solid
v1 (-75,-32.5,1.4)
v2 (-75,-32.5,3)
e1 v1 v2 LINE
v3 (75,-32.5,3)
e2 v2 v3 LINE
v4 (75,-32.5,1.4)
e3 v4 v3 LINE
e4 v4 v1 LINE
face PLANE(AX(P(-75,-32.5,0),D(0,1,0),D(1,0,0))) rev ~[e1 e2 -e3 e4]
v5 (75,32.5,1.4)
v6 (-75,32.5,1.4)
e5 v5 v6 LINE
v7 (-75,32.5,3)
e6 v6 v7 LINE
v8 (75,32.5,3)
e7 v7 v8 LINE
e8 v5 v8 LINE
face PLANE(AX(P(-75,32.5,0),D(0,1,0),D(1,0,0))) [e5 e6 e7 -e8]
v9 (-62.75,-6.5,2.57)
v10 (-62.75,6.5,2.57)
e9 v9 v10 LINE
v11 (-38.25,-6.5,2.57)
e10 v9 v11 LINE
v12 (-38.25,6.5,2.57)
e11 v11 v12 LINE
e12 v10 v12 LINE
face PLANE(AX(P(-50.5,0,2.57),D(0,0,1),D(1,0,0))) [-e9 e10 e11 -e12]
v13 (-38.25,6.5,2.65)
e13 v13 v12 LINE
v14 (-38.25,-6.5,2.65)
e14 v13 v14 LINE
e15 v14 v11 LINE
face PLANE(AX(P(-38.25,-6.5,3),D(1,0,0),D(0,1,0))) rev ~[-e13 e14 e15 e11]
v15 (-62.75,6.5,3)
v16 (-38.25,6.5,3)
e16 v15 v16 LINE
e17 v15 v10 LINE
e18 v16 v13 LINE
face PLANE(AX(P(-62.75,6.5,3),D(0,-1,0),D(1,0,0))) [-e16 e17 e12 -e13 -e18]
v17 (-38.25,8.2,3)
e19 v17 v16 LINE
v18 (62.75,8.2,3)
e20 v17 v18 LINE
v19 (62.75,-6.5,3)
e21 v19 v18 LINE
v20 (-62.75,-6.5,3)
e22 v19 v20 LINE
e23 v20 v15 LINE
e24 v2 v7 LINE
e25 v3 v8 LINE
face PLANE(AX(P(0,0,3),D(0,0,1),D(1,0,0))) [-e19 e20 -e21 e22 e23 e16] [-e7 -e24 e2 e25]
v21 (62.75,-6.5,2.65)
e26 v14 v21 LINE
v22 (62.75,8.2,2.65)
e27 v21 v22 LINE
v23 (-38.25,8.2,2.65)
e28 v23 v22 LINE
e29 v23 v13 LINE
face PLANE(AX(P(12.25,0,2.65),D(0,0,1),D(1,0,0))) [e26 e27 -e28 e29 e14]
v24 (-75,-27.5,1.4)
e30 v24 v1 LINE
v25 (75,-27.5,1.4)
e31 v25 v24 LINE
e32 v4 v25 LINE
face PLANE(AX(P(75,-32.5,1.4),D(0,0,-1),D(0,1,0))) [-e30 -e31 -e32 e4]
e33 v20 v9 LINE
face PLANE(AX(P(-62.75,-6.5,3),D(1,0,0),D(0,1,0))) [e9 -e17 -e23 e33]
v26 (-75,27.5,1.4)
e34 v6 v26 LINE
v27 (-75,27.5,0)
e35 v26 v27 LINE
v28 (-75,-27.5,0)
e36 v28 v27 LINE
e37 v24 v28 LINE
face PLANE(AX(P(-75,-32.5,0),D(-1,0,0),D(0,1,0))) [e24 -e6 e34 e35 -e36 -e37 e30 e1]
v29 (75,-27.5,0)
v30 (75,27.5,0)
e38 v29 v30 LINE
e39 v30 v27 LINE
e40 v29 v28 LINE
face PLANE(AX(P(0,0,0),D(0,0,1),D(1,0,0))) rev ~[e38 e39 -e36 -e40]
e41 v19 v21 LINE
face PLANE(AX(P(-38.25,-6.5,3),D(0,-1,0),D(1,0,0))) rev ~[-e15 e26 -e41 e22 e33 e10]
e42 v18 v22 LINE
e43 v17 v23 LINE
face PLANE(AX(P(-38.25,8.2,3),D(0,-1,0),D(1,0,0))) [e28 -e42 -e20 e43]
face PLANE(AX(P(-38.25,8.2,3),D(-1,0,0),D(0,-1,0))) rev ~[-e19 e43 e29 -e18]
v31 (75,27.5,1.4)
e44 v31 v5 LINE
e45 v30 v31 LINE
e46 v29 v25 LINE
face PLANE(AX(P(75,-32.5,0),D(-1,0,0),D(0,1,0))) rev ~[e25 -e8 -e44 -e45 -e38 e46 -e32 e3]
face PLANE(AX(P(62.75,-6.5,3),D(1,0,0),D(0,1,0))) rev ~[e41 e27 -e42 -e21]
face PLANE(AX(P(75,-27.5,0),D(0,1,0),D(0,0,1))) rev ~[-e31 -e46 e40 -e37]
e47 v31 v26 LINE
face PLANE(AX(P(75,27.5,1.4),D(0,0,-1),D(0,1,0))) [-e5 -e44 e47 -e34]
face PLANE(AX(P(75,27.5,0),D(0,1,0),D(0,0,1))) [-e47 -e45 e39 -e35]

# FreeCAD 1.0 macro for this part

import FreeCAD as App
import Part
import Sketcher

V = App.Vector
Q = App.Units.Quantity


def add_polygon(sketch, points):
    """Adds a closed chain of lines whose ends are joined by coincident constraints."""
    first, n = sketch.GeometryCount, len(points)
    for a, b in zip(points, points[1:] + points[:1]):
        sketch.addGeometry(Part.LineSegment(App.Vector(*a, 0), App.Vector(*b, 0)), False)
    for i in range(n):
        sketch.addConstraint(Sketcher.Constraint("Coincident", first + i, 2, first + (i + 1) % n, 1))

doc = App.newDocument("Part")
params = doc.addObject("Spreadsheet::Sheet", "Params")
for row, (alias, value) in enumerate([
    ("sketch1_width", "150 mm"),
    ("sketch1_height", "65 mm"),
    ("pad1_length", "3 mm"),
    ("sketch2_width", "5 mm"),
    ("sketch2_height", "1.4 mm"),
    ("sketch3_width", "101 mm"),
    ("sketch3_height", "14.7 mm"),
    ("pocket2_length", "0.35 mm"),
    ("sketch4_height", "13 mm"),
    ("sketch4_width", "24.5 mm"),
    ("pocket3_length", "0.43 mm"),
], start=1):
    params.set(f"A{row}", alias)
    params.set(f"B{row}", "=" + value)
    params.setAlias(f"B{row}", alias)

body = doc.addObject("PartDesign::Body", "Body")

sketch1 = body.newObject("Sketcher::SketchObject", "Sketch")
sketch1.AttachmentSupport = (doc.getObject("XY_Plane"), [""])
sketch1.MapMode = "FlatFace"
add_polygon(sketch1, [(-75, 32), (-75, -32), (75, -32), (75, 32)])
sketch1.addConstraint([
    Sketcher.Constraint("Vertical", 0),
    Sketcher.Constraint("Horizontal", 1),
    Sketcher.Constraint("Vertical", 2),
    Sketcher.Constraint("Horizontal", 3),
    Sketcher.Constraint("Symmetric", 0, 2, 2, 2, -1, 1),
    Sketcher.Constraint("DistanceX", 1, 1, 1, 2, Q("150 mm")),
    Sketcher.Constraint("DistanceY", 0, 2, 0, 1, Q("65 mm")),
])
sketch1.setExpression("Constraints[9]", "Params.sketch1_width")
sketch1.setExpression("Constraints[10]", "Params.sketch1_height")
pad1 = body.newObject("PartDesign::Pad", "Pad")
pad1.Profile = sketch1
pad1.setExpression("Length", "Params.pad1_length")

sketch2 = body.newObject("Sketcher::SketchObject", "Sketch001")
sketch2.AttachmentSupport = (doc.getObject("YZ_Plane"), [""])
sketch2.MapMode = "FlatFace"
sketch2.AttachmentOffset = App.Placement(V(0, 0, 75), App.Rotation())
add_polygon(sketch2, [(-32.5, 1.4), (-32.5, 0), (-27.5, 0), (-27.5, 1.4)])
add_polygon(sketch2, [(27.5, 1.4), (27.5, 0), (32.5, 0), (32.5, 1.4)])
sketch2.addConstraint([
    Sketcher.Constraint("Vertical", 0),
    Sketcher.Constraint("Horizontal", 1),
    Sketcher.Constraint("Vertical", 2),
    Sketcher.Constraint("Horizontal", 3),
    Sketcher.Constraint("Vertical", 4),
    Sketcher.Constraint("Horizontal", 5),
    Sketcher.Constraint("Vertical", 6),
    Sketcher.Constraint("Horizontal", 7),
    Sketcher.Constraint("Symmetric", 1, 2, 4, 2, -1, 1),
    Sketcher.Constraint("Symmetric", 0, 2, 5, 2, -2),
    Sketcher.Constraint("Horizontal", 3, 2, 6, 2),
    Sketcher.Constraint("DistanceX", 1, 1, 1, 2, Q("5 mm")),
    Sketcher.Constraint("DistanceY", 0, 2, 0, 1, Q("1.4 mm")),
    Sketcher.Constraint("DistanceX", 1, 2, 4, 2, Q("55 mm")),
])
sketch2.setExpression("Constraints[19]", "Params.sketch2_width")
sketch2.setExpression("Constraints[20]", "Params.sketch2_height")
pocket1 = body.newObject("PartDesign::Pocket", "Pocket")
pocket1.Profile = sketch2
pocket1.Type = "ThroughAll"

sketch3 = body.newObject("Sketcher::SketchObject", "Sketch002")
sketch3.AttachmentSupport = (doc.getObject("XY_Plane"), [""])
sketch3.MapMode = "FlatFace"
sketch3.AttachmentOffset = App.Placement(V(0, 0, 3), App.Rotation())
add_polygon(sketch3, [(-38, -6), (63, -6), (63, 8), (-38, 8)])
sketch3.addConstraint([
    Sketcher.Constraint("Horizontal", 0),
    Sketcher.Constraint("Vertical", 1),
    Sketcher.Constraint("Horizontal", 2),
    Sketcher.Constraint("Vertical", 3),
    Sketcher.Constraint("DistanceX", 0, 1, 0, 2, Q("101 mm")),
    Sketcher.Constraint("DistanceY", 1, 1, 1, 2, Q("14.7 mm")),
    Sketcher.Constraint("DistanceY", 0, 2, -1, 1, Q("6.5 mm")),
    Sketcher.Constraint("DistanceX", -1, 1, 0, 2, Q("62.75 mm")),
])
sketch3.setExpression("Constraints[8]", "Params.sketch3_width")
sketch3.setExpression("Constraints[9]", "Params.sketch3_height")
pocket2 = body.newObject("PartDesign::Pocket", "Pocket001")
pocket2.Profile = sketch3
pocket2.setExpression("Length", "Params.pocket2_length")

sketch4 = body.newObject("Sketcher::SketchObject", "Sketch003")
sketch4.AttachmentSupport = (doc.getObject("XY_Plane"), [""])
sketch4.MapMode = "FlatFace"
sketch4.AttachmentOffset = App.Placement(V(0, 0, 3), App.Rotation())
add_polygon(sketch4, [(-63, 6), (-63, -6), (-38, -6), (-38, 6)])
sketch4.addConstraint([
    Sketcher.Constraint("Vertical", 0),
    Sketcher.Constraint("Horizontal", 1),
    Sketcher.Constraint("Vertical", 2),
    Sketcher.Constraint("Horizontal", 3),
    Sketcher.Constraint("DistanceY", 0, 2, 0, 1, Q("13 mm")),
    Sketcher.Constraint("DistanceX", 1, 1, 1, 2, Q("24.5 mm")),
    Sketcher.Constraint("DistanceY", 0, 2, -1, 1, Q("6.5 mm")),
    Sketcher.Constraint("DistanceX", 0, 2, -1, 1, Q("62.75 mm")),
])
sketch4.setExpression("Constraints[8]", "Params.sketch4_height")
sketch4.setExpression("Constraints[9]", "Params.sketch4_width")
pocket3 = body.newObject("PartDesign::Pocket", "Pocket002")
pocket3.Profile = sketch4
pocket3.setExpression("Length", "Params.pocket3_length")

doc.recompute()
